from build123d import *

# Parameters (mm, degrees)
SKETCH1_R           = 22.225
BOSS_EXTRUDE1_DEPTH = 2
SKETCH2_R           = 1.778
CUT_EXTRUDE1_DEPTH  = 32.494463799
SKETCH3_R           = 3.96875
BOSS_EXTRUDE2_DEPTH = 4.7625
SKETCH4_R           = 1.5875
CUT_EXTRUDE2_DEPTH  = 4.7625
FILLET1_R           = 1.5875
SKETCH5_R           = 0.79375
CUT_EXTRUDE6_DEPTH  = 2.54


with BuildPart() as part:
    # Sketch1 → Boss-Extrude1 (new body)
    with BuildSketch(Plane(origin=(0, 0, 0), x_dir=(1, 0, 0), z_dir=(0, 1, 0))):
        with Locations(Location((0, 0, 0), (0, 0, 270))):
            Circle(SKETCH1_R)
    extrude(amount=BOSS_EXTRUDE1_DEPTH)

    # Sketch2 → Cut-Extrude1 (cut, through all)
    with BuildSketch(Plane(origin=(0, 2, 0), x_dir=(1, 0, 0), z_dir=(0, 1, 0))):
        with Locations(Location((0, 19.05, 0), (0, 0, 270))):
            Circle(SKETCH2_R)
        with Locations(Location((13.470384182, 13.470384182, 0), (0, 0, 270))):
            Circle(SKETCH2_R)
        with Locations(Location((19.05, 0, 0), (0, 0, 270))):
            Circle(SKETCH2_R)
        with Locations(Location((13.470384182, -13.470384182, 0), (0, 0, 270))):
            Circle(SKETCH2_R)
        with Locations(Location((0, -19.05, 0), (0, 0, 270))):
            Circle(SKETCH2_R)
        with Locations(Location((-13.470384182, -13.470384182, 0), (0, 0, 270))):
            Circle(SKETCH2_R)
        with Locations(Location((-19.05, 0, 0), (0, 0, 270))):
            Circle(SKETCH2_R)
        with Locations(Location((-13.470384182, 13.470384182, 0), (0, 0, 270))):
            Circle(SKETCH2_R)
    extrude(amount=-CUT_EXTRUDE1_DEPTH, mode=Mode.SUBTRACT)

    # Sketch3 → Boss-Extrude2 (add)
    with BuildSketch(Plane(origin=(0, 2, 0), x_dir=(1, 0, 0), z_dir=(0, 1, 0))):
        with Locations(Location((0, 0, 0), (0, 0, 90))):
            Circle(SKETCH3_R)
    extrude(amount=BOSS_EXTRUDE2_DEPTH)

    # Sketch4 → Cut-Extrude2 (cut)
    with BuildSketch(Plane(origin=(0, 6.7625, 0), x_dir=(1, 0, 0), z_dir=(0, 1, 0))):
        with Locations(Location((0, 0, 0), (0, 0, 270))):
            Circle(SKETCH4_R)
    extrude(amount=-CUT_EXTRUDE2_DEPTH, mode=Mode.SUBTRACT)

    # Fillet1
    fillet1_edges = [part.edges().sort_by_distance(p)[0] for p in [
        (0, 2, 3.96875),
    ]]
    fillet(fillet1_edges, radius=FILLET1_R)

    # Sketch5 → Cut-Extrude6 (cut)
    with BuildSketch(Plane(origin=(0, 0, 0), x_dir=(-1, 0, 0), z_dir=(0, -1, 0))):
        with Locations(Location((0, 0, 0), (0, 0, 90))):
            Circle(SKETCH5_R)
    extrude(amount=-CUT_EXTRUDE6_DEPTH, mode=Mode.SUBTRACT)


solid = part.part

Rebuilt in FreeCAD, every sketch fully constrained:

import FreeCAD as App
import Part
import Sketcher
Q = App.Units.Quantity


def edges_at(feature, points):
    """Names of the edges that pass closest to the given points."""
    edges = feature.Shape.Edges
    near = lambda p: min(range(len(edges)), key=lambda i: edges[i].distToShape(Part.Vertex(*p))[0])
    return sorted({f"Edge{near(p) + 1}" for p in points})

doc = App.newDocument("Part")
body = doc.addObject("PartDesign::Body", "Body")

# Sketch on XZ plane
sketch1 = doc.addObject("Sketcher::SketchObject", "Sketch")
body.addObject(sketch1)
sketch1.AttachmentSupport = (doc.XZ_Plane, [""])
sketch1.MapMode = "FlatFace"
sketch1.addGeometry(Part.Circle(App.Vector(0, 0, 0), App.Vector(0, 0, 1), 22), False)
sketch1.addConstraint([
    Sketcher.Constraint("Coincident", 0, 3, -1, 1),
    Sketcher.Constraint("Diameter", 0, Q("1.75 in")),
])
pad1 = doc.addObject("PartDesign::Pad", "Pad")
body.addObject(pad1)
pad1.Profile = sketch1
pad1.Length = 2
pad1.Reversed = True

# Sketch on XZ plane
sketch2 = doc.addObject("Sketcher::SketchObject", "Sketch001")
body.addObject(sketch2)
sketch2.AttachmentSupport = (doc.XZ_Plane, [""])
sketch2.MapMode = "FlatFace"
sketch2.AttachmentOffset = App.Placement(App.Vector(0, 0, -2), App.Rotation())
sketch2.addGeometry([
    Part.Circle(App.Vector(0, -19.1, 0), App.Vector(0, 0, 1), 1.8),  # 0
    Part.Circle(App.Vector(13.5, -13.5, 0), App.Vector(0, 0, 1), 1.8),  # 1
    Part.Circle(App.Vector(19.1, 0, 0), App.Vector(0, 0, 1), 1.8),  # 2
    Part.Circle(App.Vector(13.5, 13.5, 0), App.Vector(0, 0, 1), 1.8),  # 3
    Part.Circle(App.Vector(0, 19.1, 0), App.Vector(0, 0, 1), 1.8),  # 4
    Part.Circle(App.Vector(-13.5, 13.5, 0), App.Vector(0, 0, 1), 1.8),  # 5
    Part.Circle(App.Vector(-19.1, 0, 0), App.Vector(0, 0, 1), 1.8),  # 6
    Part.Circle(App.Vector(-13.5, -13.5, 0), App.Vector(0, 0, 1), 1.8),  # 7
], False)
sketch2.addConstraint([
    Sketcher.Constraint("Equal", 0, 1),
    Sketcher.Constraint("Equal", 1, 2),
    Sketcher.Constraint("Equal", 2, 3),
    Sketcher.Constraint("Equal", 3, 4),
    Sketcher.Constraint("Equal", 4, 5),
    Sketcher.Constraint("Equal", 5, 6),
    Sketcher.Constraint("Equal", 6, 7),
    Sketcher.Constraint("Symmetric", 0, 3, 4, 3, -1, 1),
    Sketcher.Constraint("Symmetric", 1, 3, 5, 3, -1, 1),
    Sketcher.Constraint("Symmetric", 2, 3, 6, 3, -1, 1),
    Sketcher.Constraint("Symmetric", 3, 3, 7, 3, -1, 1),
    Sketcher.Constraint("Symmetric", 3, 3, 5, 3, -2),
    Sketcher.Constraint("PointOnObject", 0, 3, -2),
    Sketcher.Constraint("PointOnObject", 2, 3, -1),
    Sketcher.Constraint("Diameter", 0, Q("0.14 in")),
    Sketcher.Constraint("DistanceY", 0, 3, 4, 3, Q("1.5 in")),
    Sketcher.Constraint("DistanceX", -1, 1, 2, 3, Q("0.75 in")),
    Sketcher.Constraint("DistanceY", 1, 3, 3, 3, Q("26.940768 mm")),
    Sketcher.Constraint("DistanceX", 5, 3, 3, 3, Q("26.940768 mm")),
])
pocket1 = doc.addObject("PartDesign::Pocket", "Pocket")
body.addObject(pocket1)
pocket1.Profile = sketch2
pocket1.Type = "ThroughAll"
pocket1.Reversed = True

# Sketch on XZ plane
sketch3 = doc.addObject("Sketcher::SketchObject", "Sketch002")
body.addObject(sketch3)
sketch3.AttachmentSupport = (doc.XZ_Plane, [""])
sketch3.MapMode = "FlatFace"
sketch3.AttachmentOffset = App.Placement(App.Vector(0, 0, -2), App.Rotation())
sketch3.addGeometry(Part.Circle(App.Vector(0, 0, 0), App.Vector(0, 0, 1), 4), False)
sketch3.addConstraint([
    Sketcher.Constraint("Coincident", 0, 3, -1, 1),
    Sketcher.Constraint("Diameter", 0, Q("0.3125 in")),
])
pad2 = doc.addObject("PartDesign::Pad", "Pad001")
body.addObject(pad2)
pad2.Profile = sketch3
pad2.Length = Q("0.1875 in")
pad2.Reversed = True

# Sketch on XZ plane
sketch4 = doc.addObject("Sketcher::SketchObject", "Sketch003")
body.addObject(sketch4)
sketch4.AttachmentSupport = (doc.XZ_Plane, [""])
sketch4.MapMode = "FlatFace"
sketch4.AttachmentOffset = App.Placement(App.Vector(0, 0, -6.7625), App.Rotation())
sketch4.addGeometry(Part.Circle(App.Vector(0, 0, 0), App.Vector(0, 0, 1), 1.6), False)
sketch4.addConstraint([
    Sketcher.Constraint("Coincident", 0, 3, -1, 1),
    Sketcher.Constraint("Diameter", 0, Q("0.125 in")),
])
pocket2 = doc.addObject("PartDesign::Pocket", "Pocket001")
body.addObject(pocket2)
pocket2.Profile = sketch4
pocket2.Length = Q("0.1875 in")
pocket2.Reversed = True
doc.recompute()

fillet = doc.addObject("PartDesign::Fillet", "Fillet")
body.addObject(fillet)
fillet.Base = (pocket2, edges_at(pocket2, [(0, 2, 3.969)]))
fillet.Radius = Q("0.0625 in")

# Sketch on XZ plane
sketch5 = doc.addObject("Sketcher::SketchObject", "Sketch004")
body.addObject(sketch5)
sketch5.AttachmentSupport = (doc.XZ_Plane, [""])
sketch5.MapMode = "FlatFace"
sketch5.addGeometry(Part.Circle(App.Vector(0, 0, 0), App.Vector(0, 0, 1), 0.8), False)
sketch5.addConstraint([
    Sketcher.Constraint("Coincident", 0, 3, -1, 1),
    Sketcher.Constraint("Diameter", 0, Q("0.0625 in")),
])
pocket3 = doc.addObject("PartDesign::Pocket", "Pocket002")
body.addObject(pocket3)
pocket3.Profile = sketch5
pocket3.Length = Q("0.1 in")

doc.recompute()
